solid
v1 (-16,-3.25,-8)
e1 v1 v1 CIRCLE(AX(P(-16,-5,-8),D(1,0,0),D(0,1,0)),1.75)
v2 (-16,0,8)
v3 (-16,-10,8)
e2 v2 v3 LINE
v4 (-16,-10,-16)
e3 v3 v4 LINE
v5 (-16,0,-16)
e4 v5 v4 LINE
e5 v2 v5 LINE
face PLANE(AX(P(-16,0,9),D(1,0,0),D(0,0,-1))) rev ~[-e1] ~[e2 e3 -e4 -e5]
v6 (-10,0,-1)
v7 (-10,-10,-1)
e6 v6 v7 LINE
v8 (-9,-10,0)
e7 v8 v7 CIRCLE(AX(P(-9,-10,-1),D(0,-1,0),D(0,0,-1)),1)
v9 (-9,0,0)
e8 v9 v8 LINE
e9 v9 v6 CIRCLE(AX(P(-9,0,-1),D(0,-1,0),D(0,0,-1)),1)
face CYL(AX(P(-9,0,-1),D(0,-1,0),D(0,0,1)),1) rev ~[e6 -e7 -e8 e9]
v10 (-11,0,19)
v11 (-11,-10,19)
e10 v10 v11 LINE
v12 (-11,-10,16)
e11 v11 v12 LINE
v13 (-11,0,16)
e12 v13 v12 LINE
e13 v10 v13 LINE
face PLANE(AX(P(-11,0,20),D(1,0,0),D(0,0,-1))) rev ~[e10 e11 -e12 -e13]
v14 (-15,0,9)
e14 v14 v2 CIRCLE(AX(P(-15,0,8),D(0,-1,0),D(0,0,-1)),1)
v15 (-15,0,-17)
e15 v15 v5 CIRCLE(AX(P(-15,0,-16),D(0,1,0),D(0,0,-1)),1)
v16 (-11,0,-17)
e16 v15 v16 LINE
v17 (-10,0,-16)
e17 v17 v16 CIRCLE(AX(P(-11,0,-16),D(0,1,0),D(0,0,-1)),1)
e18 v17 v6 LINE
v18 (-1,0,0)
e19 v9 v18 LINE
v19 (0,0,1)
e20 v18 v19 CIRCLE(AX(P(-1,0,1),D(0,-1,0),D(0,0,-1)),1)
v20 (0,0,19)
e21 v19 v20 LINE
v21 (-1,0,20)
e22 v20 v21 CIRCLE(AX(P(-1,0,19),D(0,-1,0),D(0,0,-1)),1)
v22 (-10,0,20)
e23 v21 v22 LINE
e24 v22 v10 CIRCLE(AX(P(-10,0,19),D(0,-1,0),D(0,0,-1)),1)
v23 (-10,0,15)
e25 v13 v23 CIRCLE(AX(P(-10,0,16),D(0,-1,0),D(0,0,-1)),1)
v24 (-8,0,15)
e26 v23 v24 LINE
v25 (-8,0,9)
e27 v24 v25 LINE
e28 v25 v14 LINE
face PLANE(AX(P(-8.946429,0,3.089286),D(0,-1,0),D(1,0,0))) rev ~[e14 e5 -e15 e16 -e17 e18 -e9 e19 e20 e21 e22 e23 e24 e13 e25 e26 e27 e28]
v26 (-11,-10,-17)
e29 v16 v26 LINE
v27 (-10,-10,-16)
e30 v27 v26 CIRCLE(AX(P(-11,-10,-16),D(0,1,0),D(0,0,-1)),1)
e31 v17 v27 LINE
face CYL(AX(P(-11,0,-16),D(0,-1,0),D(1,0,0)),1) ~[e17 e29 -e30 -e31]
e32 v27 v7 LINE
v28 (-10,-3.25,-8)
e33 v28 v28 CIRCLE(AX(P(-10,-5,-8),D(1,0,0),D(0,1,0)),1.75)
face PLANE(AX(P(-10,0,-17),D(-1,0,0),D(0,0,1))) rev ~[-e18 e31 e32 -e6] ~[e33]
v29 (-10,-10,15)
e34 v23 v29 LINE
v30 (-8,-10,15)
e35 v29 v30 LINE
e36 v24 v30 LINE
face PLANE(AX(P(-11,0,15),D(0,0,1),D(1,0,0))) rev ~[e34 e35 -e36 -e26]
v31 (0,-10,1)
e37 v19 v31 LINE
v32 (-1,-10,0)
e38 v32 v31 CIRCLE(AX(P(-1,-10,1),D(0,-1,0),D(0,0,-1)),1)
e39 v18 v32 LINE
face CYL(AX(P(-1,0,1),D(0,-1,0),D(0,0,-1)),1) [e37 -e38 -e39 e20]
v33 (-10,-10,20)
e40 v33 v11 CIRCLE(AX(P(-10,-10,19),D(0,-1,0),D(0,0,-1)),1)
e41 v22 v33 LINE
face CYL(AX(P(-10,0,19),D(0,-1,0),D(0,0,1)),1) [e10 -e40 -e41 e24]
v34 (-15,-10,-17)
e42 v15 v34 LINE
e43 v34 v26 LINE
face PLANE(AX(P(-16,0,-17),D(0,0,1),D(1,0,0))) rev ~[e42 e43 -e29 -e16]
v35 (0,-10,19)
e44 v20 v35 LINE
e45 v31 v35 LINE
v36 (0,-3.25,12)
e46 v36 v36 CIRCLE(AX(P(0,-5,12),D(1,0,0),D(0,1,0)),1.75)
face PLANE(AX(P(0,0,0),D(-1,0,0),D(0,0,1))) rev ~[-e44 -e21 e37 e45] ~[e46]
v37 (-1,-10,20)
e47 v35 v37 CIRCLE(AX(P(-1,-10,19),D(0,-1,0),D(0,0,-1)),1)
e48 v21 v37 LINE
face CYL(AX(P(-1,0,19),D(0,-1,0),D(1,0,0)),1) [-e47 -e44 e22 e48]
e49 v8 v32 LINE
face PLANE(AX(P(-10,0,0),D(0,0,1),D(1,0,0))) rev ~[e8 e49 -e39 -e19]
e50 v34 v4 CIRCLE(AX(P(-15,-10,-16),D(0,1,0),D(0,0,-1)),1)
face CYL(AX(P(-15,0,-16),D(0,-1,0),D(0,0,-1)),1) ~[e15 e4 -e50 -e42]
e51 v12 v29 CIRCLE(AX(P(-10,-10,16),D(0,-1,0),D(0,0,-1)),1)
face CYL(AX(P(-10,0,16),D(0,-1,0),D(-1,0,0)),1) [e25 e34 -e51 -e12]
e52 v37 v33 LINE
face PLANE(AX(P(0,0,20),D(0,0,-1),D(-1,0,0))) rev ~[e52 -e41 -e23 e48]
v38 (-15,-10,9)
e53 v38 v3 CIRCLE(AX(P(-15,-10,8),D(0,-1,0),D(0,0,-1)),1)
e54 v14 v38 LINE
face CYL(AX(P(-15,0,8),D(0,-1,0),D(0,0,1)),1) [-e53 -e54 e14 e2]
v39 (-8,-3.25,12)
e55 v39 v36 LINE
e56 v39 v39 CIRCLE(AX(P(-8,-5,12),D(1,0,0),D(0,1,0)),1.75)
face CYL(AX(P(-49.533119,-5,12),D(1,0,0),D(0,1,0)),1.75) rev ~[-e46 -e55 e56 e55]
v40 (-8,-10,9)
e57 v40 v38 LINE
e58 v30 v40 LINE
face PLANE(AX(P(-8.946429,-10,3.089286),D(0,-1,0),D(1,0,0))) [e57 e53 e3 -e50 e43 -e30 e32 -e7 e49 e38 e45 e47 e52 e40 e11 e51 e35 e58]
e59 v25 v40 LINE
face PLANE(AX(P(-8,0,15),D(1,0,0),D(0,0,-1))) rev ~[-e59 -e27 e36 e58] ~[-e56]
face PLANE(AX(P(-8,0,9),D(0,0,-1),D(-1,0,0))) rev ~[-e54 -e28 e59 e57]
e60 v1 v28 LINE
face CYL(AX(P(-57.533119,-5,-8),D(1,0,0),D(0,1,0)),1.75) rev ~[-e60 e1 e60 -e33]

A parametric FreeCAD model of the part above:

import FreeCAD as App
import Part
import Sketcher


def edges_at(feature, points):
    """Names of the edges that pass closest to the given points."""
    edges = feature.Shape.Edges
    near = lambda p: min(range(len(edges)), key=lambda i: edges[i].distToShape(Part.Vertex(*p))[0])
    return sorted({f"Edge{near(p) + 1}" for p in points})

doc = App.newDocument("Part")
body = doc.addObject("PartDesign::Body", "Body")

sketch1 = body.newObject("Sketcher::SketchObject", "Sketch")
sketch1.AttachmentSupport = (doc.getObject("XZ_Plane"), [""])
sketch1.MapMode = "FlatFace"
sketch1.addGeometry([
    Part.LineSegment(App.Vector(-10, 0, 0), App.Vector(0, 0, 0)),
    Part.LineSegment(App.Vector(0, 0, 0), App.Vector(0, 20, 0)),
    Part.LineSegment(App.Vector(0, 20, 0), App.Vector(-11, 20, 0)),
    Part.LineSegment(App.Vector(-11, 20, 0), App.Vector(-11, 15, 0)),
    Part.LineSegment(App.Vector(-11, 15, 0), App.Vector(-8, 15, 0)),
    Part.LineSegment(App.Vector(-8, 15, 0), App.Vector(-8, 9, 0)),
    Part.LineSegment(App.Vector(-8, 9, 0), App.Vector(-16, 9, 0)),
    Part.LineSegment(App.Vector(-16, 9, 0), App.Vector(-16, -17, 0)),
    Part.LineSegment(App.Vector(-16, -17, 0), App.Vector(-10, -17, 0)),
    Part.LineSegment(App.Vector(-10, -17, 0), App.Vector(-10, 0, 0)),
], False)
sketch1.addConstraint([
    Sketcher.Constraint("Coincident", 0, 2, 1, 1),
    Sketcher.Constraint("Coincident", 1, 2, 2, 1),
    Sketcher.Constraint("Coincident", 2, 2, 3, 1),
    Sketcher.Constraint("Coincident", 3, 2, 4, 1),
    Sketcher.Constraint("Coincident", 4, 2, 5, 1),
    Sketcher.Constraint("Coincident", 5, 2, 6, 1),
    Sketcher.Constraint("Coincident", 6, 2, 7, 1),
    Sketcher.Constraint("Coincident", 7, 2, 8, 1),
    Sketcher.Constraint("Coincident", 8, 2, 9, 1),
    Sketcher.Constraint("Coincident", 9, 2, 0, 1),
    Sketcher.Constraint("Horizontal", 0),
    Sketcher.Constraint("Vertical", 1),
    Sketcher.Constraint("Horizontal", 2),
    Sketcher.Constraint("Vertical", 3),
    Sketcher.Constraint("Horizontal", 4),
    Sketcher.Constraint("Vertical", 5),
    Sketcher.Constraint("Horizontal", 6),
    Sketcher.Constraint("Vertical", 7),
    Sketcher.Constraint("Horizontal", 8),
    Sketcher.Constraint("Vertical", 9),
    Sketcher.Constraint("Coincident", 0, 2, -1, 1),
    Sketcher.Constraint("Equal", 8, 5),
    Sketcher.Constraint("DistanceX", 0, 1, 0, 2, 10.0),
    Sketcher.Constraint("DistanceX", 2, 2, 2, 1, 11.0),
    Sketcher.Constraint("DistanceX", 4, 1, 4, 2, 3.0),
    Sketcher.Constraint("DistanceX", 6, 2, 6, 1, 8.0),
    Sketcher.Constraint("DistanceY", 1, 1, 1, 2, 20.0),
    Sketcher.Constraint("DistanceY", 3, 2, 3, 1, 5.0),
    Sketcher.Constraint("DistanceY", 7, 2, 7, 1, 26.0),
])
pad1 = body.newObject("PartDesign::Pad", "Pad")
pad1.Profile = sketch1
pad1.Length = 10

sketch2 = body.newObject("Sketcher::SketchObject", "Sketch001")
sketch2.AttachmentSupport = (doc.getObject("YZ_Plane"), [""])
sketch2.MapMode = "FlatFace"
sketch2.AttachmentOffset = App.Placement(App.Vector(0, 0, -8), App.Rotation())
sketch2.addGeometry(Part.Circle(App.Vector(-5, 12, 0), App.Vector(0, 0, 1), 1.75), False)
sketch2.addConstraint([
    Sketcher.Constraint("Diameter", 0, 3.5),
    Sketcher.Constraint("DistanceX", 0, 3, -1, 1, 5.0),
    Sketcher.Constraint("DistanceY", -1, 1, 0, 3, 12.0),
])
doc.recompute()
hole = body.newObject("PartDesign::Hole", "Hole")
hole.Profile = sketch2
hole.ThreadType = "None"
hole.Diameter = 3.5
hole.DepthType = "ThroughAll"
hole.Reversed = True
doc.recompute()

fillet = body.newObject("PartDesign::Fillet", "Fillet")
fillet.Base = (hole, edges_at(hole, [
    (-11, -5, 20),
    (-11, -5, 15),
    (-16, -5, 9),
    (-16, -5, -17),
    (-10, -5, -17),
    (-10, -5, 0),
    (0, -5, 0),
    (0, -5, 20),
]))
fillet.Radius = 1

sketch3 = body.newObject("Sketcher::SketchObject", "Sketch002")
sketch3.AttachmentSupport = (doc.getObject("YZ_Plane"), [""])
sketch3.MapMode = "FlatFace"
sketch3.AttachmentOffset = App.Placement(App.Vector(0, 0, -16), App.Rotation())
sketch3.addGeometry(Part.Circle(App.Vector(-5, -8, 0), App.Vector(0, 0, 1), 1.75), False)
sketch3.addConstraint([
    Sketcher.Constraint("Diameter", 0, 3.5),
    Sketcher.Constraint("DistanceX", 0, 3, -1, 1, 5.0),
    Sketcher.Constraint("DistanceY", 0, 3, -1, 1, 8.0),
])
doc.recompute()
hole2 = body.newObject("PartDesign::Hole", "Hole001")
hole2.Profile = sketch3
hole2.ThreadType = "None"
hole2.Diameter = 3.5
hole2.DepthType = "ThroughAll"
hole2.Reversed = True

doc.recompute()
